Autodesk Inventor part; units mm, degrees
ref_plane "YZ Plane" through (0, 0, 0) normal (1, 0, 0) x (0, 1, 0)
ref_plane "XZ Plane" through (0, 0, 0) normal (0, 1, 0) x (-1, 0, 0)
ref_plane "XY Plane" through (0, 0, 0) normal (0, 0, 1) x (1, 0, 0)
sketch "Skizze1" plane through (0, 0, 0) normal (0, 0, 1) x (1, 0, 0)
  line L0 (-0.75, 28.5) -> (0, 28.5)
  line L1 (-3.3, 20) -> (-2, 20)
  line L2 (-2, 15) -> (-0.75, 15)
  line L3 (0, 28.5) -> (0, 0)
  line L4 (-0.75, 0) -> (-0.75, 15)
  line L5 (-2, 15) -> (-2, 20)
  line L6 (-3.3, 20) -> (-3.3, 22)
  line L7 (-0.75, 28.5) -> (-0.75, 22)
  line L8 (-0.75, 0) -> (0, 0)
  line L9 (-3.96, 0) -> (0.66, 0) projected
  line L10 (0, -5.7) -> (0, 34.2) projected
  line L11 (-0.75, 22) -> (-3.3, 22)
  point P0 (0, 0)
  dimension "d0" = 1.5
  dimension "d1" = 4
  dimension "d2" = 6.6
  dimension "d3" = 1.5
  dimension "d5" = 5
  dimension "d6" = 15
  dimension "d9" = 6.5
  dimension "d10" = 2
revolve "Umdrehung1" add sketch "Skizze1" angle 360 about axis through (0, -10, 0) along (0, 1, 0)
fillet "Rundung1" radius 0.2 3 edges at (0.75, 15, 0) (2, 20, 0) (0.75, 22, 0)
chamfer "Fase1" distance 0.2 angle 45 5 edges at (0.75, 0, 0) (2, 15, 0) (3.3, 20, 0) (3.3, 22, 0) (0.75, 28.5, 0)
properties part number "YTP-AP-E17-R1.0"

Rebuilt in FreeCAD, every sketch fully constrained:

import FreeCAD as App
import Part
import Sketcher

V = App.Vector
Q = App.Units.Quantity


def edges_at(feature, points):
    """Names of the edges that pass closest to the given points."""
    edges = feature.Shape.Edges
    near = lambda p: min(range(len(edges)), key=lambda i: edges[i].distToShape(Part.Vertex(*p))[0])
    return sorted({f"Edge{near(p) + 1}" for p in points})


def add_polygon(sketch, points):
    """Adds a closed chain of lines whose ends are joined by coincident constraints."""
    first, n = sketch.GeometryCount, len(points)
    for a, b in zip(points, points[1:] + points[:1]):
        sketch.addGeometry(Part.LineSegment(App.Vector(*a, 0), App.Vector(*b, 0)), False)
    for i in range(n):
        sketch.addConstraint(Sketcher.Constraint("Coincident", first + i, 2, first + (i + 1) % n, 1))

doc = App.newDocument("Part")
body = doc.addObject("PartDesign::Body", "Body")

# Sketch on XY plane
sketch1 = body.newObject("Sketcher::SketchObject", "Sketch")
sketch1.AttachmentSupport = (doc.getObject("XY_Plane"), [""])
sketch1.MapMode = "FlatFace"
add_polygon(sketch1, [(0, 28.5), (-0.75, 28.5), (-0.75, 22), (-3.3, 22), (-3.3, 20), (-2, 20), (-2, 15), (-0.75, 15), (-0.75, 0), (0, 0)])  # lines 0-9
sketch1.addConstraint(Sketcher.Constraint("Horizontal", 0))
sketch1.addConstraint(Sketcher.Constraint("Vertical", 1))
sketch1.addConstraint(Sketcher.Constraint("Horizontal", 2))
sketch1.addConstraint(Sketcher.Constraint("Vertical", 3))
sketch1.addConstraint(Sketcher.Constraint("Horizontal", 4))
sketch1.addConstraint(Sketcher.Constraint("Vertical", 5))
sketch1.addConstraint(Sketcher.Constraint("Horizontal", 6))
sketch1.addConstraint(Sketcher.Constraint("Vertical", 7))
sketch1.addConstraint(Sketcher.Constraint("Horizontal", 8))
sketch1.addConstraint(Sketcher.Constraint("Vertical", 9))
sketch1.addConstraint(Sketcher.Constraint("Coincident", 8, 2, -1, 1))
sketch1.addConstraint(Sketcher.Constraint("Vertical", 1, 2, 6, 2))
sketch1.addConstraint(Sketcher.Constraint("DistanceY", 3, 2, 3, 1, Q("2 mm")))
sketch1.addConstraint(Sketcher.Constraint("DistanceY", 5, 2, 5, 1, Q("5 mm")))
sketch1.addConstraint(Sketcher.Constraint("DistanceY", 7, 2, 7, 1, Q("15 mm")))
sketch1.addConstraint(Sketcher.Constraint("DistanceY", 1, 2, 1, 1, Q("6.5 mm")))
sketch1.addConstraint(Sketcher.Constraint("DistanceX", 4, 2, -1, 1, Q("2 mm")))
sketch1.addConstraint(Sketcher.Constraint("DistanceX", 4, 1, 4, 2, Q("1.3 mm")))
sketch1.addConstraint(Sketcher.Constraint("DistanceX", 0, 2, 0, 1, Q("0.75 mm")))
revolution = body.newObject("PartDesign::Revolution", "Revolution")
revolution.Profile = sketch1
revolution.ReferenceAxis = (sketch1, ["V_Axis"])
revolution.Angle = 360
doc.recompute()

fillet = body.newObject("PartDesign::Fillet", "Fillet")
fillet.Base = (revolution, edges_at(revolution, [(0.75, 15, 0), (2, 20, 0), (0.75, 22, 0)]))
fillet.Radius = 0.2
doc.recompute()

chamfer = body.newObject("PartDesign::Chamfer", "Chamfer")
chamfer.Base = (fillet, edges_at(fillet, [
    (0.75, 0, 0),
    (2, 15, 0),
    (3.3, 20, 0),
    (3.3, 22, 0),
    (0.75, 28.5, 0),
]))
chamfer.Size = 0.2

doc.recompute()
